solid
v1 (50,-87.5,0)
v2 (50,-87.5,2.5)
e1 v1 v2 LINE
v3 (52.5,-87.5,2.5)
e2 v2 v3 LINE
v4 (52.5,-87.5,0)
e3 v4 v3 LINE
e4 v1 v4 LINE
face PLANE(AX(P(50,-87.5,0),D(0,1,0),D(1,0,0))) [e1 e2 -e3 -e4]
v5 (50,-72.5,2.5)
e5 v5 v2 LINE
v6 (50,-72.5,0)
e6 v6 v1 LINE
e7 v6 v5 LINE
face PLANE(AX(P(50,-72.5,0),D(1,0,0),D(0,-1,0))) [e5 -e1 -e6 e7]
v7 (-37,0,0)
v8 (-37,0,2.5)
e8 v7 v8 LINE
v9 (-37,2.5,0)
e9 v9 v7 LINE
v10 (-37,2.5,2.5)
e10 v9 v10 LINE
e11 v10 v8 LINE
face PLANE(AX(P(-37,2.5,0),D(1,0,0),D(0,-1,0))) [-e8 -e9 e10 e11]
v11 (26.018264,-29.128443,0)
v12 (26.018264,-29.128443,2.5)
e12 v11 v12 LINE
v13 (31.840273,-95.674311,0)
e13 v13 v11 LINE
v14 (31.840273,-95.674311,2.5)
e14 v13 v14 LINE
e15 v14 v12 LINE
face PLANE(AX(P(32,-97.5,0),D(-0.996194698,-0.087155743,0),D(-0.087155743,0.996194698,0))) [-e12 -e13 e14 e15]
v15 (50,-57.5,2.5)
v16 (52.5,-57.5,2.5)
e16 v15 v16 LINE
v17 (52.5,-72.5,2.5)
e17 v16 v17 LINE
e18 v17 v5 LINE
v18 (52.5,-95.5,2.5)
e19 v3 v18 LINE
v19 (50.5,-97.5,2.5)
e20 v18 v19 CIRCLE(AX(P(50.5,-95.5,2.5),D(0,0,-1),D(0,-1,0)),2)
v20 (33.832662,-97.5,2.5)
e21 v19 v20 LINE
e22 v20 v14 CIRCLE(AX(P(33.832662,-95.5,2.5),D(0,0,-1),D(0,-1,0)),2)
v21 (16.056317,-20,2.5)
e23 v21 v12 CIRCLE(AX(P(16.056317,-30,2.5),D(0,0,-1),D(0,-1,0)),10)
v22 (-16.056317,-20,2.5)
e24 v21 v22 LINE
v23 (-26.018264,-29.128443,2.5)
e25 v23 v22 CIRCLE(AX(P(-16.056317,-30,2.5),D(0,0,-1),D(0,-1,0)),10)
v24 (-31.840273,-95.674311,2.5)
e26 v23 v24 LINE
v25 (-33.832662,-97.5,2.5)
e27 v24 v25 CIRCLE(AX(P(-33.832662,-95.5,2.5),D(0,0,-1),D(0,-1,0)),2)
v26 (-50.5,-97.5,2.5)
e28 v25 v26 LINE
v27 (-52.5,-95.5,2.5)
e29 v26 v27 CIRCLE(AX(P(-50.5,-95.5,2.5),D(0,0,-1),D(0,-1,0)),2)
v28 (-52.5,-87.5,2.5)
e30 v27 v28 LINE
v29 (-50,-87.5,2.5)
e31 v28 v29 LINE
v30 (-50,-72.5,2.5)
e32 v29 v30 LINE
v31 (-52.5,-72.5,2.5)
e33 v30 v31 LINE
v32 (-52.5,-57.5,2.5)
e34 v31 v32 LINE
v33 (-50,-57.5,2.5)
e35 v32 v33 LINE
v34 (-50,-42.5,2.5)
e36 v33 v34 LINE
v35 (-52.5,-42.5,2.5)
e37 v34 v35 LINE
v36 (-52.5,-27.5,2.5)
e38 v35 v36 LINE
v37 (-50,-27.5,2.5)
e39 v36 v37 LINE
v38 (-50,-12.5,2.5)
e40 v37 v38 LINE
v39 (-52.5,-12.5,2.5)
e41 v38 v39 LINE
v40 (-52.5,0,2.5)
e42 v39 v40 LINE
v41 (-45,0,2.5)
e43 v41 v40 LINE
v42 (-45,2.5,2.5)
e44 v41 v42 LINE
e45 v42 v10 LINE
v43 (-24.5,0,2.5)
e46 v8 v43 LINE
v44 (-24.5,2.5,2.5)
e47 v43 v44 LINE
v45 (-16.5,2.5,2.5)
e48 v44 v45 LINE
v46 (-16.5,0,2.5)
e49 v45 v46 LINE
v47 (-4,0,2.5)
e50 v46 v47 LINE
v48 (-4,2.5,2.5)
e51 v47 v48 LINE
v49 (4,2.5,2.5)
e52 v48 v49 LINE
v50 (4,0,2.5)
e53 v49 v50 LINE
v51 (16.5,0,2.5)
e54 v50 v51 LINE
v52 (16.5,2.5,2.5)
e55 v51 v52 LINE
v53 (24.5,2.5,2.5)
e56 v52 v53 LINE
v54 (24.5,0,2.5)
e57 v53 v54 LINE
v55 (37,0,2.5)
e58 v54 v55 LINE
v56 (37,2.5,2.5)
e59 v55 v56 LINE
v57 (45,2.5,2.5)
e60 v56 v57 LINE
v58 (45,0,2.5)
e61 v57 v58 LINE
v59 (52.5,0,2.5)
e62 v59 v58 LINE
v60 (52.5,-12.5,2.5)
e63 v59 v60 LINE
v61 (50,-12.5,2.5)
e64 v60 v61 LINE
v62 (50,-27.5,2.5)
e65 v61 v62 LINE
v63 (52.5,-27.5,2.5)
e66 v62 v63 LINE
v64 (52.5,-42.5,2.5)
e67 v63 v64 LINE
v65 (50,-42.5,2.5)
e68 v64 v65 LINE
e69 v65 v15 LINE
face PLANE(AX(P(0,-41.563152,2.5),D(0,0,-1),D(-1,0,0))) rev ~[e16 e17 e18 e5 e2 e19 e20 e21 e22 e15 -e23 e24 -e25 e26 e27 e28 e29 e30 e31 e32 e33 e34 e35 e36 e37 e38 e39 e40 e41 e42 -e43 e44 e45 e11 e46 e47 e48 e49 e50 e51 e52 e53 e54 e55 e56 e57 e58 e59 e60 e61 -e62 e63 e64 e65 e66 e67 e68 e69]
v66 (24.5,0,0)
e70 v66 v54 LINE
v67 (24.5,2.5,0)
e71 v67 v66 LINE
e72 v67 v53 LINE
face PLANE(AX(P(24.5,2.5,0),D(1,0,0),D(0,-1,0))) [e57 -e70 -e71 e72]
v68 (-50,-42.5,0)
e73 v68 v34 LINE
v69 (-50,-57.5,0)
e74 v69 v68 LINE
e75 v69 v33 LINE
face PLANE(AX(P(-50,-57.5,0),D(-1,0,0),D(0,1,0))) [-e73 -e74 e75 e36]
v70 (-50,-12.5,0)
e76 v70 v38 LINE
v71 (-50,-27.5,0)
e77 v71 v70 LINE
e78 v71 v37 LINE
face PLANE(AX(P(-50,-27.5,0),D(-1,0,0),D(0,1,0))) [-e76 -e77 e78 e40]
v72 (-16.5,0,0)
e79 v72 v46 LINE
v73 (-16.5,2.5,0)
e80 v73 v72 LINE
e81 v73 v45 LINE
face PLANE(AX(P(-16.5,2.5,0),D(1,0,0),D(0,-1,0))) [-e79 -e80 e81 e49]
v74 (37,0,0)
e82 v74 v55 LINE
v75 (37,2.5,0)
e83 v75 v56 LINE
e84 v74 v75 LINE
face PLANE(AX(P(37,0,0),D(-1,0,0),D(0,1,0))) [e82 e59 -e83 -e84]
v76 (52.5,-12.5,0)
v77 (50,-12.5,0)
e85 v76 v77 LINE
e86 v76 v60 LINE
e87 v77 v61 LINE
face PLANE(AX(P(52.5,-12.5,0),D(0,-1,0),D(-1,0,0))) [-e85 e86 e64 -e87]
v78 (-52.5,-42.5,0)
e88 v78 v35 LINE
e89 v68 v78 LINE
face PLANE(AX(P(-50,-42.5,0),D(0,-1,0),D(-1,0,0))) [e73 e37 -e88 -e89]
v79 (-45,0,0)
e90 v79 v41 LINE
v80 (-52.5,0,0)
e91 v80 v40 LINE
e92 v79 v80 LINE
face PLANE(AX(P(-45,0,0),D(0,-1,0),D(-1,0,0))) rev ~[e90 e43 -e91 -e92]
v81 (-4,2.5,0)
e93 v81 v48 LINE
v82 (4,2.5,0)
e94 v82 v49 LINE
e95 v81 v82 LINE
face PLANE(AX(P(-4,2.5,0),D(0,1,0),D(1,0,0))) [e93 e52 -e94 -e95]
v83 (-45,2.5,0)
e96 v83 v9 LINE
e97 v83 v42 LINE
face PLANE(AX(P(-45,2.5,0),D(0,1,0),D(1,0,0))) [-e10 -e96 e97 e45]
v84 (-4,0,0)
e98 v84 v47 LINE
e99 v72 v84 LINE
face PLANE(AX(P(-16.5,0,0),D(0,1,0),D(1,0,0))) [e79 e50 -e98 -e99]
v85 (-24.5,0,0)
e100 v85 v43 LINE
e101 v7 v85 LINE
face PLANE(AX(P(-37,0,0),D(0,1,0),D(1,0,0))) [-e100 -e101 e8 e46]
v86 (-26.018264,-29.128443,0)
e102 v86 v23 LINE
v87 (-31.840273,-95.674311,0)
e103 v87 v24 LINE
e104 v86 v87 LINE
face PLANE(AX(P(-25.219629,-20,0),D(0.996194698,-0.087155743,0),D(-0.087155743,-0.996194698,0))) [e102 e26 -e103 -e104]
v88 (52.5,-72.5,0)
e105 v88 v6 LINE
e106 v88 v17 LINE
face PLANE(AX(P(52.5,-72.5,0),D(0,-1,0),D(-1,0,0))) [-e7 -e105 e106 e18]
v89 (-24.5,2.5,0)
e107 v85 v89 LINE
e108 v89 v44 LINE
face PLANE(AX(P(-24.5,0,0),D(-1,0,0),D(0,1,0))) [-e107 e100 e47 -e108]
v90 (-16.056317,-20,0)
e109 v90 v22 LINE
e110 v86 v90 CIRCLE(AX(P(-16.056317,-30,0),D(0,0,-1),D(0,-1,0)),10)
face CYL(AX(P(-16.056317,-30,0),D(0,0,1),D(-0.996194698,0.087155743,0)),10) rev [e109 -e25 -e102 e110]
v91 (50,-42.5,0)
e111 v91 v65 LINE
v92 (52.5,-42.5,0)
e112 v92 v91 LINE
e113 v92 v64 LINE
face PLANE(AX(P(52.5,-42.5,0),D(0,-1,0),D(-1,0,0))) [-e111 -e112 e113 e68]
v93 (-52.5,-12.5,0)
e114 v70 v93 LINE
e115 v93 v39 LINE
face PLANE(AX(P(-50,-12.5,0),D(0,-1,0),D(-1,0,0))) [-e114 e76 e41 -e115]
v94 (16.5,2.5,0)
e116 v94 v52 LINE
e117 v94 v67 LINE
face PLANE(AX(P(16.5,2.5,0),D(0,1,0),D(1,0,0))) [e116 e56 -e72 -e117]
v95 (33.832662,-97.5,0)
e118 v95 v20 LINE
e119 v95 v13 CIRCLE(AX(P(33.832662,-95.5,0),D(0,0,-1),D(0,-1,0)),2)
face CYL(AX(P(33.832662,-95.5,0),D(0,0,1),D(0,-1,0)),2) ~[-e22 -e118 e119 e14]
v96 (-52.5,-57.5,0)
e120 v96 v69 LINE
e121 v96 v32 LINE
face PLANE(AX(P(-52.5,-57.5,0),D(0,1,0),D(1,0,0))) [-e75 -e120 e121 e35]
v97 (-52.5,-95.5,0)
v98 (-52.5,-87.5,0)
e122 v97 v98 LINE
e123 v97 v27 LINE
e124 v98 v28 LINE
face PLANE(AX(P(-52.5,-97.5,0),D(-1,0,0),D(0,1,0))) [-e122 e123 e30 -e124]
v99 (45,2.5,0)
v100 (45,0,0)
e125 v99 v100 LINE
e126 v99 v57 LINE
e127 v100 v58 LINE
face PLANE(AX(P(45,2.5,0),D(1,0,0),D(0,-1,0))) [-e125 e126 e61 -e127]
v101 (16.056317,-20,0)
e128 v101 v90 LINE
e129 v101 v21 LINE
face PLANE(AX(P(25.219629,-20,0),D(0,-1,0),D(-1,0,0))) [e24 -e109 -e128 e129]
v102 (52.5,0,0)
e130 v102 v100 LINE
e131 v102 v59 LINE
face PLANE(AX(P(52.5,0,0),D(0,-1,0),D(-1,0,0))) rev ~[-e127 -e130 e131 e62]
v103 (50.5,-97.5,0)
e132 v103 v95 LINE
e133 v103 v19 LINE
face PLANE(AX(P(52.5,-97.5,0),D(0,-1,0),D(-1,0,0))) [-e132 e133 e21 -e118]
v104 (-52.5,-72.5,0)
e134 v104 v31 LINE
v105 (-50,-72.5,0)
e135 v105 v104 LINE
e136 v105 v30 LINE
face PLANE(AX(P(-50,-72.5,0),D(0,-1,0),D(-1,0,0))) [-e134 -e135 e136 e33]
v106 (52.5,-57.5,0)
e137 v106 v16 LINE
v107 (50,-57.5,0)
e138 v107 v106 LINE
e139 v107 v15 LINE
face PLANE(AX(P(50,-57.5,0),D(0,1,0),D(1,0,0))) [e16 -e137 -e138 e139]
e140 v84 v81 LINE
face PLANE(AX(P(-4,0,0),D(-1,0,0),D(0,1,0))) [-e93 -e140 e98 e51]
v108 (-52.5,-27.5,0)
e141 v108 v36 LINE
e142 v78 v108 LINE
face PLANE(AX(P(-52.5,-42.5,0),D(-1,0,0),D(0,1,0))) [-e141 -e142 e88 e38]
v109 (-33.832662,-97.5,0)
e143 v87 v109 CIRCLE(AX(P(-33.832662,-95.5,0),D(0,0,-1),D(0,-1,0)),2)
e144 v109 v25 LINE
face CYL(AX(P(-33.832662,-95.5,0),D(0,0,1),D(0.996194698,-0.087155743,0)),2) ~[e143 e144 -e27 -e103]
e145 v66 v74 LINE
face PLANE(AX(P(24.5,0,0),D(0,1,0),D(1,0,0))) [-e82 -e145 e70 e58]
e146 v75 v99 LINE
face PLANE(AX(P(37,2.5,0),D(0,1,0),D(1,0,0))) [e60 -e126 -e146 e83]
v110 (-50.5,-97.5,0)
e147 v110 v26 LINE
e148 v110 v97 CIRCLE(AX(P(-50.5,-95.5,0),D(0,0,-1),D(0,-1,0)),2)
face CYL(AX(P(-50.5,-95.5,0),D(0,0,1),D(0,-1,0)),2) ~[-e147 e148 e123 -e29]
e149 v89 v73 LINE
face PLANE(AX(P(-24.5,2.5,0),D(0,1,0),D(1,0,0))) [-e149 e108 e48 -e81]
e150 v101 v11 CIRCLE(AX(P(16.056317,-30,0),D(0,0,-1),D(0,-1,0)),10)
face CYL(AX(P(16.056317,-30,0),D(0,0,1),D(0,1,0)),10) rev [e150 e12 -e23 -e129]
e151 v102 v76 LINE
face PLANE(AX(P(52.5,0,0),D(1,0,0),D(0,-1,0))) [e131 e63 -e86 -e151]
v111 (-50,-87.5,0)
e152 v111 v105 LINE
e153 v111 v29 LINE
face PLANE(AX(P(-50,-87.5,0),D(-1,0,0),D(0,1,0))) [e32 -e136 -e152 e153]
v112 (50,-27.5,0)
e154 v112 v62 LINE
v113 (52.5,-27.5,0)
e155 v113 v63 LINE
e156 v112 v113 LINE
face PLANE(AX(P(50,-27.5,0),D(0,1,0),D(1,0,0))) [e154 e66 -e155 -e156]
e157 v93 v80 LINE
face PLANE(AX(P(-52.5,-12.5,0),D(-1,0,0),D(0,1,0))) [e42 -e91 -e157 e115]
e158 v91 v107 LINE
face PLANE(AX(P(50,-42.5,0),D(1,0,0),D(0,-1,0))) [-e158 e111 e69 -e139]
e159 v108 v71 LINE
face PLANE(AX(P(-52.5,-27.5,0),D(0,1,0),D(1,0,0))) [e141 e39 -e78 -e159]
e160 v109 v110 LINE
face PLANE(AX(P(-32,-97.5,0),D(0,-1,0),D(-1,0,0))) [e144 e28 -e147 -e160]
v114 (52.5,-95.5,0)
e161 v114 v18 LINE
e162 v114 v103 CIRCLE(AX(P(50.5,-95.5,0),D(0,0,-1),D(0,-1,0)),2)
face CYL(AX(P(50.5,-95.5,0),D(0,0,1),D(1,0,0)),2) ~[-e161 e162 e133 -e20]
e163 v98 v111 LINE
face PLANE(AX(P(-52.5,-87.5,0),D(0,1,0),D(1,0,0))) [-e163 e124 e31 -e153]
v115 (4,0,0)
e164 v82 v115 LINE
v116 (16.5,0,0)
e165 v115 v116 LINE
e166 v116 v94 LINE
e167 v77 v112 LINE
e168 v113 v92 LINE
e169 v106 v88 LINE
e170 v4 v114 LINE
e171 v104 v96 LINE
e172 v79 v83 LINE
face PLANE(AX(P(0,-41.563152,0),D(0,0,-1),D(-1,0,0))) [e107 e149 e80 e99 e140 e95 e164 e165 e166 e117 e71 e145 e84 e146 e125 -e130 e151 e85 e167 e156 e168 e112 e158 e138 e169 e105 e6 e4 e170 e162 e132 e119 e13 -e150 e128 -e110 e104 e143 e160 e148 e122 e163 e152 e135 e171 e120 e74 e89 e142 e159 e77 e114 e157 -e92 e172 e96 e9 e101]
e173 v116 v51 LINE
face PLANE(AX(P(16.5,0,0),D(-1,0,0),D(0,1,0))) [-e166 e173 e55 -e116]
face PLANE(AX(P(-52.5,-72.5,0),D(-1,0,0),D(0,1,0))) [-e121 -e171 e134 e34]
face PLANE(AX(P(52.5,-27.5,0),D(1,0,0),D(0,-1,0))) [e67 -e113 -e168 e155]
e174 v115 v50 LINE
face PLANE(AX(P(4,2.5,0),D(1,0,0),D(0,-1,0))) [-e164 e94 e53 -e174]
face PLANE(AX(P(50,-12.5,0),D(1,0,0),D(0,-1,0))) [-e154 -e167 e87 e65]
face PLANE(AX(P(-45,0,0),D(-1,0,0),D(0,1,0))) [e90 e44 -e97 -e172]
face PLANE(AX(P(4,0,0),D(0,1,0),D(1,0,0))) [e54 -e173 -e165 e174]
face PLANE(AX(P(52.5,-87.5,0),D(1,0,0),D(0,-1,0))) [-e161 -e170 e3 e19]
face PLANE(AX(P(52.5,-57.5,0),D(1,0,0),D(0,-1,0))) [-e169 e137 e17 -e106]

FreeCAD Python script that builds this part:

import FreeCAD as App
import Part
import Sketcher

V = App.Vector
Q = App.Units.Quantity


def edges_at(feature, points):
    """Names of the edges that pass closest to the given points."""
    edges = feature.Shape.Edges
    near = lambda p: min(range(len(edges)), key=lambda i: edges[i].distToShape(Part.Vertex(*p))[0])
    return sorted({f"Edge{near(p) + 1}" for p in points})


def add_polygon(sketch, points):
    """Adds a closed chain of lines whose ends are joined by coincident constraints."""
    first, n = sketch.GeometryCount, len(points)
    for a, b in zip(points, points[1:] + points[:1]):
        sketch.addGeometry(Part.LineSegment(App.Vector(*a, 0), App.Vector(*b, 0)), False)
    for i in range(n):
        sketch.addConstraint(Sketcher.Constraint("Coincident", first + i, 2, first + (i + 1) % n, 1))

doc = App.newDocument("Part")
body = doc.addObject("PartDesign::Body", "Body")

# Sketch on XY plane
sketch1 = body.newObject("Sketcher::SketchObject", "Sketch")
sketch1.AttachmentSupport = (doc.getObject("XY_Plane"), [""])
sketch1.MapMode = "FlatFace"
add_polygon(sketch1, [(-32, -97.5), (-25.219629, -20), (25.219629, -20), (32, -97.5), (52.5, -97.5), (52.5, -87.5), (50, -87.5), (50, -72.5), (52.5, -72.5), (52.5, -57.5), (50, -57.5), (50, -42.5), (52.5, -42.5), (52.5, -27.5), (50, -27.5), (50, -12.5), (52.5, -12.5), (52.5, 0), (45, 0), (45, 2.5), (37, 2.5), (37, 0), (24.5, 0), (24.5, 2.5), (16.5, 2.5), (16.5, 0), (4, 0), (4, 2.5), (-4, 2.5), (-4, 0), (-16.5, 0), (-16.5, 2.5), (-24.5, 2.5), (-24.5, 0), (-37, 0), (-37, 2.5), (-45, 2.5), (-45, 0), (-52.5, 0), (-52.5, -12.5), (-50, -12.5), (-50, -27.5), (-52.5, -27.5), (-52.5, -42.5), (-50, -42.5), (-50, -57.5), (-52.5, -57.5), (-52.5, -72.5), (-50, -72.5), (-50, -87.5), (-52.5, -87.5), (-52.5, -97.5)])  # lines 0-51
sketch1.addConstraint(Sketcher.Constraint("Horizontal", 1))
sketch1.addConstraint(Sketcher.Constraint("Horizontal", 3))
sketch1.addConstraint(Sketcher.Constraint("Vertical", 4))
sketch1.addConstraint(Sketcher.Constraint("Horizontal", 5))
sketch1.addConstraint(Sketcher.Constraint("Vertical", 6))
sketch1.addConstraint(Sketcher.Constraint("Horizontal", 7))
sketch1.addConstraint(Sketcher.Constraint("Vertical", 8))
sketch1.addConstraint(Sketcher.Constraint("Horizontal", 9))
sketch1.addConstraint(Sketcher.Constraint("Vertical", 10))
sketch1.addConstraint(Sketcher.Constraint("Horizontal", 11))
sketch1.addConstraint(Sketcher.Constraint("Vertical", 12))
sketch1.addConstraint(Sketcher.Constraint("Horizontal", 13))
sketch1.addConstraint(Sketcher.Constraint("Vertical", 14))
sketch1.addConstraint(Sketcher.Constraint("Horizontal", 15))
sketch1.addConstraint(Sketcher.Constraint("Vertical", 16))
sketch1.addConstraint(Sketcher.Constraint("Horizontal", 17))
sketch1.addConstraint(Sketcher.Constraint("Vertical", 18))
sketch1.addConstraint(Sketcher.Constraint("Horizontal", 19))
sketch1.addConstraint(Sketcher.Constraint("Vertical", 20))
sketch1.addConstraint(Sketcher.Constraint("Horizontal", 21))
sketch1.addConstraint(Sketcher.Constraint("Vertical", 22))
sketch1.addConstraint(Sketcher.Constraint("Horizontal", 23))
sketch1.addConstraint(Sketcher.Constraint("Vertical", 24))
sketch1.addConstraint(Sketcher.Constraint("Horizontal", 25))
sketch1.addConstraint(Sketcher.Constraint("Vertical", 26))
sketch1.addConstraint(Sketcher.Constraint("Horizontal", 27))
sketch1.addConstraint(Sketcher.Constraint("Vertical", 28))
sketch1.addConstraint(Sketcher.Constraint("Horizontal", 29))
sketch1.addConstraint(Sketcher.Constraint("Vertical", 30))
sketch1.addConstraint(Sketcher.Constraint("Horizontal", 31))
sketch1.addConstraint(Sketcher.Constraint("Vertical", 32))
sketch1.addConstraint(Sketcher.Constraint("Horizontal", 33))
sketch1.addConstraint(Sketcher.Constraint("Vertical", 34))
sketch1.addConstraint(Sketcher.Constraint("Horizontal", 35))
sketch1.addConstraint(Sketcher.Constraint("Vertical", 36))
sketch1.addConstraint(Sketcher.Constraint("Horizontal", 37))
sketch1.addConstraint(Sketcher.Constraint("Vertical", 38))
sketch1.addConstraint(Sketcher.Constraint("Horizontal", 39))
sketch1.addConstraint(Sketcher.Constraint("Vertical", 40))
sketch1.addConstraint(Sketcher.Constraint("Horizontal", 41))
sketch1.addConstraint(Sketcher.Constraint("Vertical", 42))
sketch1.addConstraint(Sketcher.Constraint("Horizontal", 43))
sketch1.addConstraint(Sketcher.Constraint("Vertical", 44))
sketch1.addConstraint(Sketcher.Constraint("Horizontal", 45))
sketch1.addConstraint(Sketcher.Constraint("Vertical", 46))
sketch1.addConstraint(Sketcher.Constraint("Horizontal", 47))
sketch1.addConstraint(Sketcher.Constraint("Vertical", 48))
sketch1.addConstraint(Sketcher.Constraint("Horizontal", 49))
sketch1.addConstraint(Sketcher.Constraint("Vertical", 50))
sketch1.addConstraint(Sketcher.Constraint("Horizontal", 51))
sketch1.addConstraint(Sketcher.Constraint("Symmetric", 25, 2, 28, 2, -1, 1))
sketch1.addConstraint(Sketcher.Constraint("Symmetric", 21, 2, 32, 2, -1, 1))
sketch1.addConstraint(Sketcher.Constraint("Symmetric", 17, 2, 36, 2, -1, 1))
sketch1.addConstraint(Sketcher.Constraint("Symmetric", 24, 2, 29, 2, -2))
sketch1.addConstraint(Sketcher.Constraint("Symmetric", 20, 2, 33, 2, -2))
sketch1.addConstraint(Sketcher.Constraint("Symmetric", 16, 2, 37, 2, -2))
sketch1.addConstraint(Sketcher.Constraint("Symmetric", 14, 2, 39, 2, -2))
sketch1.addConstraint(Sketcher.Constraint("Symmetric", 12, 2, 41, 2, -2))
sketch1.addConstraint(Sketcher.Constraint("Symmetric", 10, 2, 43, 2, -2))
sketch1.addConstraint(Sketcher.Constraint("Symmetric", 8, 2, 45, 2, -2))
sketch1.addConstraint(Sketcher.Constraint("Symmetric", 6, 2, 47, 2, -2))
sketch1.addConstraint(Sketcher.Constraint("Symmetric", 4, 2, 49, 2, -2))
sketch1.addConstraint(Sketcher.Constraint("Symmetric", 2, 2, 51, 2, -2))
sketch1.addConstraint(Sketcher.Constraint("Horizontal", 19, 2, 22, 2))
sketch1.addConstraint(Sketcher.Constraint("Horizontal", 23, 2, 26, 2))
sketch1.addConstraint(Sketcher.Constraint("Horizontal", 27, 2, 30, 2))
sketch1.addConstraint(Sketcher.Constraint("Horizontal", 31, 2, 34, 2))
sketch1.addConstraint(Sketcher.Constraint("Vertical", 4, 2, 7, 2))
sketch1.addConstraint(Sketcher.Constraint("Vertical", 6, 2, 9, 2))
sketch1.addConstraint(Sketcher.Constraint("Vertical", 8, 2, 11, 2))
sketch1.addConstraint(Sketcher.Constraint("Vertical", 10, 2, 13, 2))
sketch1.addConstraint(Sketcher.Constraint("Vertical", 12, 2, 15, 2))
sketch1.addConstraint(Sketcher.Constraint("Equal", 19, 23))
sketch1.addConstraint(Sketcher.Constraint("Equal", 21, 25))
sketch1.addConstraint(Sketcher.Constraint("Equal", 23, 27))
sketch1.addConstraint(Sketcher.Constraint("Equal", 6, 8))
sketch1.addConstraint(Sketcher.Constraint("Equal", 8, 10))
sketch1.addConstraint(Sketcher.Constraint("Equal", 10, 12))
sketch1.addConstraint(Sketcher.Constraint("Equal", 12, 14))
sketch1.addConstraint(Sketcher.Constraint("Equal", 33, 16))
sketch1.addConstraint(Sketcher.Constraint("Equal", 49, 18))
sketch1.addConstraint(Sketcher.Constraint("Equal", 0, 2))
sketch1.addConstraint(Sketcher.Constraint("DistanceX", 19, 2, 19, 1, Q("8 mm")))
sketch1.addConstraint(Sketcher.Constraint("DistanceY", 4, 1, 4, 2, Q("10 mm")))
sketch1.addConstraint(Sketcher.Constraint("DistanceY", 6, 1, 6, 2, Q("15 mm")))
sketch1.addConstraint(Sketcher.Constraint("Angle", 0, Q("85 deg")))
sketch1.addConstraint(Sketcher.Constraint("DistanceX", 3, 1, 3, 2, Q("20.5 mm")))
sketch1.addConstraint(Sketcher.Constraint("DistanceX", 5, 2, 5, 1, Q("2.5 mm")))
sketch1.addConstraint(Sketcher.Constraint("DistanceX", 17, 2, 17, 1, Q("7.5 mm")))
sketch1.addConstraint(Sketcher.Constraint("DistanceX", 21, 2, 21, 1, Q("12.5 mm")))
sketch1.addConstraint(Sketcher.Constraint("DistanceY", 0, 2, -1, 1, Q("20 mm")))
pad1 = body.newObject("PartDesign::Pad", "Pad")
pad1.Profile = sketch1
pad1.Length = 2.5
doc.recompute()

fillet = body.newObject("PartDesign::Fillet", "Fillet")
fillet.Base = (pad1, edges_at(pad1, [
    (52.5, -97.5, 1.25),
    (32, -97.5, 1.25),
    (-32, -97.5, 1.25),
    (-52.5, -97.5, 1.25),
]))
fillet.Radius = 2
doc.recompute()

fillet2 = body.newObject("PartDesign::Fillet", "Fillet001")
fillet2.Base = (fillet, edges_at(fillet, [(25.22, -20, 1.25), (-25.22, -20, 1.25)]))
fillet2.Radius = 10

doc.recompute()
